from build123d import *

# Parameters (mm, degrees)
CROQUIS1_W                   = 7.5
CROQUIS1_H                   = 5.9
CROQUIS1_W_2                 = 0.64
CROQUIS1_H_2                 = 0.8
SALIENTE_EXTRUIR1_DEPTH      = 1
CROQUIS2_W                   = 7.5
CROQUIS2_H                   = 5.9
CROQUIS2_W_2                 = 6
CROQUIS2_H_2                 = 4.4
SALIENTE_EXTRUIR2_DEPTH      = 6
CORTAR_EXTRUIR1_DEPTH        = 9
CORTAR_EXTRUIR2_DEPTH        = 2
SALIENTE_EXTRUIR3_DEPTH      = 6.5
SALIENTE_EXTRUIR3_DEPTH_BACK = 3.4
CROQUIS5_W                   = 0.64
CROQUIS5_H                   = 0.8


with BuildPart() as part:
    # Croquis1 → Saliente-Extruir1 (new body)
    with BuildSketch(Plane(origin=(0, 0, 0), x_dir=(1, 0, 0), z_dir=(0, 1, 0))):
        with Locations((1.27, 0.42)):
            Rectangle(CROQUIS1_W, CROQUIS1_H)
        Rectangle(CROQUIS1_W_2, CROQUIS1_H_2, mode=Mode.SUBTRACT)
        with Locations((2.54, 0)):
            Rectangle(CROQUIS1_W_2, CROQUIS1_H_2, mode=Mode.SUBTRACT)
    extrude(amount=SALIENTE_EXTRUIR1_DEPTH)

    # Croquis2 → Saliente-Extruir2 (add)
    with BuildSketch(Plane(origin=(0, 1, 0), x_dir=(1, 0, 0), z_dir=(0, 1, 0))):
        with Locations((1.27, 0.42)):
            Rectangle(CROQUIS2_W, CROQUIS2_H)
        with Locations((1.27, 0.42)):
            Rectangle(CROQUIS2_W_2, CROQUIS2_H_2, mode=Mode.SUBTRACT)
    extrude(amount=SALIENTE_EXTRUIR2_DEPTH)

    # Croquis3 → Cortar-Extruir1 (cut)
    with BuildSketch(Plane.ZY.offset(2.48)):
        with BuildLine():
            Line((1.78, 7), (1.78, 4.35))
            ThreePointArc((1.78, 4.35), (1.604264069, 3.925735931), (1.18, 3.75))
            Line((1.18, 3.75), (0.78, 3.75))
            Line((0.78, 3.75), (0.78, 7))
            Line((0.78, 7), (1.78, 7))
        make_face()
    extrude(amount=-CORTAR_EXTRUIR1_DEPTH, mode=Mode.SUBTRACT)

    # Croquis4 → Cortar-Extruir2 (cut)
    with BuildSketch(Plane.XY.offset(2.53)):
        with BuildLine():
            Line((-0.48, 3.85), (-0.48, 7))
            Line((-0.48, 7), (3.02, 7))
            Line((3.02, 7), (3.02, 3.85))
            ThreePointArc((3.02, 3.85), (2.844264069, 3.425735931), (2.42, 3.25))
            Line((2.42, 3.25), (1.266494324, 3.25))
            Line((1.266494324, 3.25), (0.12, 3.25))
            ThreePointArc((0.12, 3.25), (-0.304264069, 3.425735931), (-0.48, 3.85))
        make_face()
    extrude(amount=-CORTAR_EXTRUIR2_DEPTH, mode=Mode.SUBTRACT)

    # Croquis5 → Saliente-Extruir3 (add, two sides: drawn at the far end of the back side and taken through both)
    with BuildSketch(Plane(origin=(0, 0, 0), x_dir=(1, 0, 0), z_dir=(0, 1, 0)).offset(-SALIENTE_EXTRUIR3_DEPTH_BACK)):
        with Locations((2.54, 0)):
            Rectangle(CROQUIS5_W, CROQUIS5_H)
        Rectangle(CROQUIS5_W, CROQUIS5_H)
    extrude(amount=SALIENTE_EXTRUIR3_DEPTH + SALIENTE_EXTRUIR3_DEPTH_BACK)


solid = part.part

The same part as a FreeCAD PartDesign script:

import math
import FreeCAD as App
import Part
import Sketcher

doc = App.newDocument("Part")
body = doc.addObject("PartDesign::Body", "Body")

# Sketch on XZ plane
sketch1 = body.newObject("Sketcher::SketchObject", "Sketch")
sketch1.AttachmentSupport = (doc.getObject("XZ_Plane"), [""])
sketch1.MapMode = "FlatFace"
sketch1.addGeometry(Part.LineSegment(App.Vector(-2.5, -3.4, 0), App.Vector(-2.5, 2.5, 0)), False)
sketch1.addGeometry(Part.LineSegment(App.Vector(-2.5, 2.5, 0), App.Vector(5, 2.5, 0)), False)
sketch1.addGeometry(Part.LineSegment(App.Vector(5, 2.5, 0), App.Vector(5, -3.4, 0)), False)
sketch1.addGeometry(Part.LineSegment(App.Vector(5, -3.4, 0), App.Vector(-2.5, -3.4, 0)), False)
sketch1.addGeometry(Part.LineSegment(App.Vector(0.3, 0.4, 0), App.Vector(-0.3, 0.4, 0)), False)
sketch1.addGeometry(Part.LineSegment(App.Vector(-0.3, 0.4, 0), App.Vector(-0.3, -0.4, 0)), False)
sketch1.addGeometry(Part.LineSegment(App.Vector(-0.3, -0.4, 0), App.Vector(0.3, -0.4, 0)), False)
sketch1.addGeometry(Part.LineSegment(App.Vector(0.3, -0.4, 0), App.Vector(0.3, 0.4, 0)), False)
sketch1.addGeometry(Part.LineSegment(App.Vector(2.9, 0.4, 0), App.Vector(2.2, 0.4, 0)), False)
sketch1.addGeometry(Part.LineSegment(App.Vector(2.2, 0.4, 0), App.Vector(2.2, -0.4, 0)), False)
sketch1.addGeometry(Part.LineSegment(App.Vector(2.2, -0.4, 0), App.Vector(2.9, -0.4, 0)), False)
sketch1.addGeometry(Part.LineSegment(App.Vector(2.9, -0.4, 0), App.Vector(2.9, 0.4, 0)), False)
sketch1.addConstraint(Sketcher.Constraint("Coincident", 0, 2, 1, 1))
sketch1.addConstraint(Sketcher.Constraint("Coincident", 1, 2, 2, 1))
sketch1.addConstraint(Sketcher.Constraint("Coincident", 2, 2, 3, 1))
sketch1.addConstraint(Sketcher.Constraint("Coincident", 3, 2, 0, 1))
sketch1.addConstraint(Sketcher.Constraint("Coincident", 4, 2, 5, 1))
sketch1.addConstraint(Sketcher.Constraint("Coincident", 5, 2, 6, 1))
sketch1.addConstraint(Sketcher.Constraint("Coincident", 6, 2, 7, 1))
sketch1.addConstraint(Sketcher.Constraint("Coincident", 7, 2, 4, 1))
sketch1.addConstraint(Sketcher.Constraint("Coincident", 8, 2, 9, 1))
sketch1.addConstraint(Sketcher.Constraint("Coincident", 9, 2, 10, 1))
sketch1.addConstraint(Sketcher.Constraint("Coincident", 10, 2, 11, 1))
sketch1.addConstraint(Sketcher.Constraint("Coincident", 11, 2, 8, 1))
sketch1.addConstraint(Sketcher.Constraint("Vertical", 0))
sketch1.addConstraint(Sketcher.Constraint("Horizontal", 1))
sketch1.addConstraint(Sketcher.Constraint("Vertical", 2))
sketch1.addConstraint(Sketcher.Constraint("Horizontal", 3))
sketch1.addConstraint(Sketcher.Constraint("Horizontal", 4))
sketch1.addConstraint(Sketcher.Constraint("Vertical", 5))
sketch1.addConstraint(Sketcher.Constraint("Horizontal", 6))
sketch1.addConstraint(Sketcher.Constraint("Vertical", 7))
sketch1.addConstraint(Sketcher.Constraint("Horizontal", 8))
sketch1.addConstraint(Sketcher.Constraint("Vertical", 9))
sketch1.addConstraint(Sketcher.Constraint("Horizontal", 10))
sketch1.addConstraint(Sketcher.Constraint("Vertical", 11))
sketch1.addConstraint(Sketcher.Constraint("Symmetric", 4, 2, 6, 2, -1, 1))
sketch1.addConstraint(Sketcher.Constraint("Horizontal", 7, 2, 8, 2))
sketch1.addConstraint(Sketcher.Constraint("Horizontal", 6, 2, 9, 2))
sketch1.addConstraint(Sketcher.Constraint("Equal", 6, 8))
sketch1.addConstraint(Sketcher.Constraint("DistanceX", 1, 1, 1, 2, 7.5))
sketch1.addConstraint(Sketcher.Constraint("DistanceY", 0, 1, 0, 2, 5.9))
sketch1.addConstraint(Sketcher.Constraint("DistanceY", 5, 2, 5, 1, 0.8))
sketch1.addConstraint(Sketcher.Constraint("DistanceX", 4, 2, 4, 1, 0.64))
sketch1.addConstraint(Sketcher.Constraint("DistanceX", 0, 2, 6, 2, 2.8))
sketch1.addConstraint(Sketcher.Constraint("DistanceX", 7, 2, 8, 2, 1.9))
sketch1.addConstraint(Sketcher.Constraint("DistanceY", -1, 1, 0, 2, 2.53))
pad1 = body.newObject("PartDesign::Pad", "Pad")
pad1.Profile = sketch1
pad1.Length = 1
pad1.Reversed = True

# Sketch on XZ plane
sketch2 = body.newObject("Sketcher::SketchObject", "Sketch001")
sketch2.AttachmentSupport = (doc.getObject("XZ_Plane"), [""])
sketch2.MapMode = "FlatFace"
sketch2.AttachmentOffset = App.Placement(App.Vector(0, 0, -1), App.Rotation())
sketch2.addGeometry(Part.LineSegment(App.Vector(-2.5, -3.4, 0), App.Vector(-2.5, 2.5, 0)), False)
sketch2.addGeometry(Part.LineSegment(App.Vector(-2.5, 2.5, 0), App.Vector(5, 2.5, 0)), False)
sketch2.addGeometry(Part.LineSegment(App.Vector(5, 2.5, 0), App.Vector(5, -3.4, 0)), False)
sketch2.addGeometry(Part.LineSegment(App.Vector(5, -3.4, 0), App.Vector(-2.5, -3.4, 0)), False)
sketch2.addGeometry(Part.LineSegment(App.Vector(4.3, 1.8, 0), App.Vector(-1.7, 1.8, 0)), False)
sketch2.addGeometry(Part.LineSegment(App.Vector(-1.7, 1.8, 0), App.Vector(-1.7, -2.6, 0)), False)
sketch2.addGeometry(Part.LineSegment(App.Vector(-1.7, -2.6, 0), App.Vector(4.3, -2.6, 0)), False)
sketch2.addGeometry(Part.LineSegment(App.Vector(4.3, -2.6, 0), App.Vector(4.3, 1.8, 0)), False)
sketch2.addConstraint(Sketcher.Constraint("Coincident", 0, 2, 1, 1))
sketch2.addConstraint(Sketcher.Constraint("Coincident", 1, 2, 2, 1))
sketch2.addConstraint(Sketcher.Constraint("Coincident", 2, 2, 3, 1))
sketch2.addConstraint(Sketcher.Constraint("Coincident", 3, 2, 0, 1))
sketch2.addConstraint(Sketcher.Constraint("Coincident", 4, 2, 5, 1))
sketch2.addConstraint(Sketcher.Constraint("Coincident", 5, 2, 6, 1))
sketch2.addConstraint(Sketcher.Constraint("Coincident", 6, 2, 7, 1))
sketch2.addConstraint(Sketcher.Constraint("Coincident", 7, 2, 4, 1))
sketch2.addConstraint(Sketcher.Constraint("Vertical", 0))
sketch2.addConstraint(Sketcher.Constraint("Horizontal", 1))
sketch2.addConstraint(Sketcher.Constraint("Vertical", 2))
sketch2.addConstraint(Sketcher.Constraint("Horizontal", 3))
sketch2.addConstraint(Sketcher.Constraint("Horizontal", 4))
sketch2.addConstraint(Sketcher.Constraint("Vertical", 5))
sketch2.addConstraint(Sketcher.Constraint("Horizontal", 6))
sketch2.addConstraint(Sketcher.Constraint("Vertical", 7))
sketch2.addConstraint(Sketcher.Constraint("DistanceX", 4, 2, 4, 1, 6.0))
sketch2.addConstraint(Sketcher.Constraint("DistanceX", 1, 1, 1, 2, 7.5))
sketch2.addConstraint(Sketcher.Constraint("DistanceY", 0, 1, 0, 2, 5.9))
sketch2.addConstraint(Sketcher.Constraint("DistanceY", 5, 2, 5, 1, 4.4))
sketch2.addConstraint(Sketcher.Constraint("DistanceX", 0, 2, -1, 1, 2.48))
sketch2.addConstraint(Sketcher.Constraint("DistanceY", -1, 1, 0, 2, 2.53))
sketch2.addConstraint(Sketcher.Constraint("DistanceX", 4, 2, -1, 1, 1.73))
sketch2.addConstraint(Sketcher.Constraint("DistanceY", -1, 1, 4, 2, 1.78))
pad2 = body.newObject("PartDesign::Pad", "Pad001")
pad2.Profile = sketch2
pad2.Length = 6
pad2.Reversed = True

# Sketch on YZ plane
sketch3 = body.newObject("Sketcher::SketchObject", "Sketch002")
sketch3.AttachmentSupport = (doc.getObject("YZ_Plane"), [""])
sketch3.MapMode = "FlatFace"
sketch3.AttachmentOffset = App.Placement(App.Vector(0, 0, -2.48), App.Rotation())
sketch3.addGeometry(Part.LineSegment(App.Vector(4.35, 1.78, 0), App.Vector(7, 1.78, 0)), False)
sketch3.addGeometry(Part.LineSegment(App.Vector(7, 1.78, 0), App.Vector(7, 0.78, 0)), False)
sketch3.addGeometry(Part.LineSegment(App.Vector(7, 0.78, 0), App.Vector(3.75, 0.78, 0)), False)
sketch3.addGeometry(Part.LineSegment(App.Vector(3.75, 0.78, 0), App.Vector(3.75, 1.18, 0)), False)
sketch3.addGeometry(Part.ArcOfCircle(Part.Circle(App.Vector(4.35, 1.18, 0), App.Vector(0, 0, 1), 0.6), math.radians(90), math.radians(180)), False)
sketch3.addConstraint(Sketcher.Constraint("Coincident", 0, 2, 1, 1))
sketch3.addConstraint(Sketcher.Constraint("Coincident", 1, 2, 2, 1))
sketch3.addConstraint(Sketcher.Constraint("Coincident", 2, 2, 3, 1))
sketch3.addConstraint(Sketcher.Constraint("Tangent", 3, 2, 4, 2))
sketch3.addConstraint(Sketcher.Constraint("Tangent", 4, 1, 0, 1))
sketch3.addConstraint(Sketcher.Constraint("Horizontal", 0))
sketch3.addConstraint(Sketcher.Constraint("Vertical", 1))
sketch3.addConstraint(Sketcher.Constraint("Horizontal", 2))
sketch3.addConstraint(Sketcher.Constraint("Vertical", 3))
sketch3.addConstraint(Sketcher.Constraint("Radius", 4, 0.6))
sketch3.addConstraint(Sketcher.Constraint("DistanceY", 1, 2, 1, 1, 1.0))
sketch3.addConstraint(Sketcher.Constraint("DistanceX", -1, 1, 0, 2, 7.0))
sketch3.addConstraint(Sketcher.Constraint("DistanceX", 0, 1, 0, 2, 2.65))
sketch3.addConstraint(Sketcher.Constraint("DistanceY", -1, 1, 4, 3, 1.18))
pocket1 = body.newObject("PartDesign::Pocket", "Pocket")
pocket1.Profile = sketch3
pocket1.Length = 9
pocket1.Reversed = True

# Sketch on XY plane
sketch4 = body.newObject("Sketcher::SketchObject", "Sketch003")
sketch4.AttachmentSupport = (doc.getObject("XY_Plane"), [""])
sketch4.MapMode = "FlatFace"
sketch4.AttachmentOffset = App.Placement(App.Vector(0, 0, 2.53), App.Rotation())
sketch4.addGeometry(Part.LineSegment(App.Vector(-0.5, 7, 0), App.Vector(-0.5, 3.9, 0)), False)
sketch4.addGeometry(Part.ArcOfCircle(Part.Circle(App.Vector(0.1, 3.8, 0), App.Vector(0, 0, 1), 0.6), math.radians(180), math.radians(270)), False)
sketch4.addGeometry(Part.LineSegment(App.Vector(0.1, 3.2, 0), App.Vector(2.4, 3.2, 0)), False)
sketch4.addGeometry(Part.ArcOfCircle(Part.Circle(App.Vector(2.4, 3.8, 0), App.Vector(0, 0, 1), 0.6), math.radians(-90), math.radians(0)), False)
sketch4.addGeometry(Part.LineSegment(App.Vector(3, 3.9, 0), App.Vector(3, 7, 0)), False)
sketch4.addGeometry(Part.LineSegment(App.Vector(3, 7, 0), App.Vector(-0.5, 7, 0)), False)
sketch4.addConstraint(Sketcher.Constraint("Tangent", 0, 2, 1, 1))
sketch4.addConstraint(Sketcher.Constraint("Tangent", 1, 2, 2, 1))
sketch4.addConstraint(Sketcher.Constraint("Tangent", 2, 2, 3, 1))
sketch4.addConstraint(Sketcher.Constraint("Tangent", 3, 2, 4, 1))
sketch4.addConstraint(Sketcher.Constraint("Coincident", 4, 2, 5, 1))
sketch4.addConstraint(Sketcher.Constraint("Coincident", 5, 2, 0, 1))
sketch4.addConstraint(Sketcher.Constraint("Vertical", 0))
sketch4.addConstraint(Sketcher.Constraint("Horizontal", 2))
sketch4.addConstraint(Sketcher.Constraint("Vertical", 4))
sketch4.addConstraint(Sketcher.Constraint("Horizontal", 5))
sketch4.addConstraint(Sketcher.Constraint("Equal", 1, 3))
sketch4.addConstraint(Sketcher.Constraint("Radius", 1, 0.6))
sketch4.addConstraint(Sketcher.Constraint("DistanceX", 2, 1, 2, 2, 2.3))
sketch4.addConstraint(Sketcher.Constraint("DistanceY", -1, 1, 4, 2, 7.0))
sketch4.addConstraint(Sketcher.Constraint("DistanceY", 0, 2, 0, 1, 3.15))
sketch4.addConstraint(Sketcher.Constraint("DistanceX", -1, 1, 1, 3, 0.12))
pocket2 = body.newObject("PartDesign::Pocket", "Pocket001")
pocket2.Profile = sketch4
pocket2.Length = 2

# Sketch on XZ plane
sketch5 = body.newObject("Sketcher::SketchObject", "Sketch004")
sketch5.AttachmentSupport = (doc.getObject("XZ_Plane"), [""])
sketch5.MapMode = "FlatFace"
sketch5.addGeometry(Part.LineSegment(App.Vector(2.2, -0.4, 0), App.Vector(2.2, 0.4, 0)), False)
sketch5.addGeometry(Part.LineSegment(App.Vector(2.2, 0.4, 0), App.Vector(2.9, 0.4, 0)), False)
sketch5.addGeometry(Part.LineSegment(App.Vector(2.9, 0.4, 0), App.Vector(2.9, -0.4, 0)), False)
sketch5.addGeometry(Part.LineSegment(App.Vector(2.9, -0.4, 0), App.Vector(2.2, -0.4, 0)), False)
sketch5.addGeometry(Part.LineSegment(App.Vector(-0.3, -0.4, 0), App.Vector(-0.3, 0.4, 0)), False)
sketch5.addGeometry(Part.LineSegment(App.Vector(-0.3, 0.4, 0), App.Vector(0.3, 0.4, 0)), False)
sketch5.addGeometry(Part.LineSegment(App.Vector(0.3, 0.4, 0), App.Vector(0.3, -0.4, 0)), False)
sketch5.addGeometry(Part.LineSegment(App.Vector(0.3, -0.4, 0), App.Vector(-0.3, -0.4, 0)), False)
sketch5.addConstraint(Sketcher.Constraint("Coincident", 0, 2, 1, 1))
sketch5.addConstraint(Sketcher.Constraint("Coincident", 1, 2, 2, 1))
sketch5.addConstraint(Sketcher.Constraint("Coincident", 2, 2, 3, 1))
sketch5.addConstraint(Sketcher.Constraint("Coincident", 3, 2, 0, 1))
sketch5.addConstraint(Sketcher.Constraint("Coincident", 4, 2, 5, 1))
sketch5.addConstraint(Sketcher.Constraint("Coincident", 5, 2, 6, 1))
sketch5.addConstraint(Sketcher.Constraint("Coincident", 6, 2, 7, 1))
sketch5.addConstraint(Sketcher.Constraint("Coincident", 7, 2, 4, 1))
sketch5.addConstraint(Sketcher.Constraint("Vertical", 0))
sketch5.addConstraint(Sketcher.Constraint("Horizontal", 1))
sketch5.addConstraint(Sketcher.Constraint("Vertical", 2))
sketch5.addConstraint(Sketcher.Constraint("Horizontal", 3))
sketch5.addConstraint(Sketcher.Constraint("Vertical", 4))
sketch5.addConstraint(Sketcher.Constraint("Horizontal", 5))
sketch5.addConstraint(Sketcher.Constraint("Vertical", 6))
sketch5.addConstraint(Sketcher.Constraint("Horizontal", 7))
sketch5.addConstraint(Sketcher.Constraint("Symmetric", 4, 2, 6, 2, -1, 1))
sketch5.addConstraint(Sketcher.Constraint("Horizontal", 1, 2, 4, 2))
sketch5.addConstraint(Sketcher.Constraint("Horizontal", 3, 2, 6, 2))
sketch5.addConstraint(Sketcher.Constraint("Equal", 3, 5))
sketch5.addConstraint(Sketcher.Constraint("DistanceY", 0, 1, 0, 2, 0.8))
sketch5.addConstraint(Sketcher.Constraint("DistanceX", 1, 1, 1, 2, 0.64))
sketch5.addConstraint(Sketcher.Constraint("DistanceX", 5, 2, 0, 2, 1.9))
pad3 = body.newObject("PartDesign::Pad", "Pad002")
pad3.Profile = sketch5
pad3.Type = "TwoLengths"
pad3.Length = 6.5
pad3.Length2 = 3.4
pad3.Reversed = True

doc.recompute()
